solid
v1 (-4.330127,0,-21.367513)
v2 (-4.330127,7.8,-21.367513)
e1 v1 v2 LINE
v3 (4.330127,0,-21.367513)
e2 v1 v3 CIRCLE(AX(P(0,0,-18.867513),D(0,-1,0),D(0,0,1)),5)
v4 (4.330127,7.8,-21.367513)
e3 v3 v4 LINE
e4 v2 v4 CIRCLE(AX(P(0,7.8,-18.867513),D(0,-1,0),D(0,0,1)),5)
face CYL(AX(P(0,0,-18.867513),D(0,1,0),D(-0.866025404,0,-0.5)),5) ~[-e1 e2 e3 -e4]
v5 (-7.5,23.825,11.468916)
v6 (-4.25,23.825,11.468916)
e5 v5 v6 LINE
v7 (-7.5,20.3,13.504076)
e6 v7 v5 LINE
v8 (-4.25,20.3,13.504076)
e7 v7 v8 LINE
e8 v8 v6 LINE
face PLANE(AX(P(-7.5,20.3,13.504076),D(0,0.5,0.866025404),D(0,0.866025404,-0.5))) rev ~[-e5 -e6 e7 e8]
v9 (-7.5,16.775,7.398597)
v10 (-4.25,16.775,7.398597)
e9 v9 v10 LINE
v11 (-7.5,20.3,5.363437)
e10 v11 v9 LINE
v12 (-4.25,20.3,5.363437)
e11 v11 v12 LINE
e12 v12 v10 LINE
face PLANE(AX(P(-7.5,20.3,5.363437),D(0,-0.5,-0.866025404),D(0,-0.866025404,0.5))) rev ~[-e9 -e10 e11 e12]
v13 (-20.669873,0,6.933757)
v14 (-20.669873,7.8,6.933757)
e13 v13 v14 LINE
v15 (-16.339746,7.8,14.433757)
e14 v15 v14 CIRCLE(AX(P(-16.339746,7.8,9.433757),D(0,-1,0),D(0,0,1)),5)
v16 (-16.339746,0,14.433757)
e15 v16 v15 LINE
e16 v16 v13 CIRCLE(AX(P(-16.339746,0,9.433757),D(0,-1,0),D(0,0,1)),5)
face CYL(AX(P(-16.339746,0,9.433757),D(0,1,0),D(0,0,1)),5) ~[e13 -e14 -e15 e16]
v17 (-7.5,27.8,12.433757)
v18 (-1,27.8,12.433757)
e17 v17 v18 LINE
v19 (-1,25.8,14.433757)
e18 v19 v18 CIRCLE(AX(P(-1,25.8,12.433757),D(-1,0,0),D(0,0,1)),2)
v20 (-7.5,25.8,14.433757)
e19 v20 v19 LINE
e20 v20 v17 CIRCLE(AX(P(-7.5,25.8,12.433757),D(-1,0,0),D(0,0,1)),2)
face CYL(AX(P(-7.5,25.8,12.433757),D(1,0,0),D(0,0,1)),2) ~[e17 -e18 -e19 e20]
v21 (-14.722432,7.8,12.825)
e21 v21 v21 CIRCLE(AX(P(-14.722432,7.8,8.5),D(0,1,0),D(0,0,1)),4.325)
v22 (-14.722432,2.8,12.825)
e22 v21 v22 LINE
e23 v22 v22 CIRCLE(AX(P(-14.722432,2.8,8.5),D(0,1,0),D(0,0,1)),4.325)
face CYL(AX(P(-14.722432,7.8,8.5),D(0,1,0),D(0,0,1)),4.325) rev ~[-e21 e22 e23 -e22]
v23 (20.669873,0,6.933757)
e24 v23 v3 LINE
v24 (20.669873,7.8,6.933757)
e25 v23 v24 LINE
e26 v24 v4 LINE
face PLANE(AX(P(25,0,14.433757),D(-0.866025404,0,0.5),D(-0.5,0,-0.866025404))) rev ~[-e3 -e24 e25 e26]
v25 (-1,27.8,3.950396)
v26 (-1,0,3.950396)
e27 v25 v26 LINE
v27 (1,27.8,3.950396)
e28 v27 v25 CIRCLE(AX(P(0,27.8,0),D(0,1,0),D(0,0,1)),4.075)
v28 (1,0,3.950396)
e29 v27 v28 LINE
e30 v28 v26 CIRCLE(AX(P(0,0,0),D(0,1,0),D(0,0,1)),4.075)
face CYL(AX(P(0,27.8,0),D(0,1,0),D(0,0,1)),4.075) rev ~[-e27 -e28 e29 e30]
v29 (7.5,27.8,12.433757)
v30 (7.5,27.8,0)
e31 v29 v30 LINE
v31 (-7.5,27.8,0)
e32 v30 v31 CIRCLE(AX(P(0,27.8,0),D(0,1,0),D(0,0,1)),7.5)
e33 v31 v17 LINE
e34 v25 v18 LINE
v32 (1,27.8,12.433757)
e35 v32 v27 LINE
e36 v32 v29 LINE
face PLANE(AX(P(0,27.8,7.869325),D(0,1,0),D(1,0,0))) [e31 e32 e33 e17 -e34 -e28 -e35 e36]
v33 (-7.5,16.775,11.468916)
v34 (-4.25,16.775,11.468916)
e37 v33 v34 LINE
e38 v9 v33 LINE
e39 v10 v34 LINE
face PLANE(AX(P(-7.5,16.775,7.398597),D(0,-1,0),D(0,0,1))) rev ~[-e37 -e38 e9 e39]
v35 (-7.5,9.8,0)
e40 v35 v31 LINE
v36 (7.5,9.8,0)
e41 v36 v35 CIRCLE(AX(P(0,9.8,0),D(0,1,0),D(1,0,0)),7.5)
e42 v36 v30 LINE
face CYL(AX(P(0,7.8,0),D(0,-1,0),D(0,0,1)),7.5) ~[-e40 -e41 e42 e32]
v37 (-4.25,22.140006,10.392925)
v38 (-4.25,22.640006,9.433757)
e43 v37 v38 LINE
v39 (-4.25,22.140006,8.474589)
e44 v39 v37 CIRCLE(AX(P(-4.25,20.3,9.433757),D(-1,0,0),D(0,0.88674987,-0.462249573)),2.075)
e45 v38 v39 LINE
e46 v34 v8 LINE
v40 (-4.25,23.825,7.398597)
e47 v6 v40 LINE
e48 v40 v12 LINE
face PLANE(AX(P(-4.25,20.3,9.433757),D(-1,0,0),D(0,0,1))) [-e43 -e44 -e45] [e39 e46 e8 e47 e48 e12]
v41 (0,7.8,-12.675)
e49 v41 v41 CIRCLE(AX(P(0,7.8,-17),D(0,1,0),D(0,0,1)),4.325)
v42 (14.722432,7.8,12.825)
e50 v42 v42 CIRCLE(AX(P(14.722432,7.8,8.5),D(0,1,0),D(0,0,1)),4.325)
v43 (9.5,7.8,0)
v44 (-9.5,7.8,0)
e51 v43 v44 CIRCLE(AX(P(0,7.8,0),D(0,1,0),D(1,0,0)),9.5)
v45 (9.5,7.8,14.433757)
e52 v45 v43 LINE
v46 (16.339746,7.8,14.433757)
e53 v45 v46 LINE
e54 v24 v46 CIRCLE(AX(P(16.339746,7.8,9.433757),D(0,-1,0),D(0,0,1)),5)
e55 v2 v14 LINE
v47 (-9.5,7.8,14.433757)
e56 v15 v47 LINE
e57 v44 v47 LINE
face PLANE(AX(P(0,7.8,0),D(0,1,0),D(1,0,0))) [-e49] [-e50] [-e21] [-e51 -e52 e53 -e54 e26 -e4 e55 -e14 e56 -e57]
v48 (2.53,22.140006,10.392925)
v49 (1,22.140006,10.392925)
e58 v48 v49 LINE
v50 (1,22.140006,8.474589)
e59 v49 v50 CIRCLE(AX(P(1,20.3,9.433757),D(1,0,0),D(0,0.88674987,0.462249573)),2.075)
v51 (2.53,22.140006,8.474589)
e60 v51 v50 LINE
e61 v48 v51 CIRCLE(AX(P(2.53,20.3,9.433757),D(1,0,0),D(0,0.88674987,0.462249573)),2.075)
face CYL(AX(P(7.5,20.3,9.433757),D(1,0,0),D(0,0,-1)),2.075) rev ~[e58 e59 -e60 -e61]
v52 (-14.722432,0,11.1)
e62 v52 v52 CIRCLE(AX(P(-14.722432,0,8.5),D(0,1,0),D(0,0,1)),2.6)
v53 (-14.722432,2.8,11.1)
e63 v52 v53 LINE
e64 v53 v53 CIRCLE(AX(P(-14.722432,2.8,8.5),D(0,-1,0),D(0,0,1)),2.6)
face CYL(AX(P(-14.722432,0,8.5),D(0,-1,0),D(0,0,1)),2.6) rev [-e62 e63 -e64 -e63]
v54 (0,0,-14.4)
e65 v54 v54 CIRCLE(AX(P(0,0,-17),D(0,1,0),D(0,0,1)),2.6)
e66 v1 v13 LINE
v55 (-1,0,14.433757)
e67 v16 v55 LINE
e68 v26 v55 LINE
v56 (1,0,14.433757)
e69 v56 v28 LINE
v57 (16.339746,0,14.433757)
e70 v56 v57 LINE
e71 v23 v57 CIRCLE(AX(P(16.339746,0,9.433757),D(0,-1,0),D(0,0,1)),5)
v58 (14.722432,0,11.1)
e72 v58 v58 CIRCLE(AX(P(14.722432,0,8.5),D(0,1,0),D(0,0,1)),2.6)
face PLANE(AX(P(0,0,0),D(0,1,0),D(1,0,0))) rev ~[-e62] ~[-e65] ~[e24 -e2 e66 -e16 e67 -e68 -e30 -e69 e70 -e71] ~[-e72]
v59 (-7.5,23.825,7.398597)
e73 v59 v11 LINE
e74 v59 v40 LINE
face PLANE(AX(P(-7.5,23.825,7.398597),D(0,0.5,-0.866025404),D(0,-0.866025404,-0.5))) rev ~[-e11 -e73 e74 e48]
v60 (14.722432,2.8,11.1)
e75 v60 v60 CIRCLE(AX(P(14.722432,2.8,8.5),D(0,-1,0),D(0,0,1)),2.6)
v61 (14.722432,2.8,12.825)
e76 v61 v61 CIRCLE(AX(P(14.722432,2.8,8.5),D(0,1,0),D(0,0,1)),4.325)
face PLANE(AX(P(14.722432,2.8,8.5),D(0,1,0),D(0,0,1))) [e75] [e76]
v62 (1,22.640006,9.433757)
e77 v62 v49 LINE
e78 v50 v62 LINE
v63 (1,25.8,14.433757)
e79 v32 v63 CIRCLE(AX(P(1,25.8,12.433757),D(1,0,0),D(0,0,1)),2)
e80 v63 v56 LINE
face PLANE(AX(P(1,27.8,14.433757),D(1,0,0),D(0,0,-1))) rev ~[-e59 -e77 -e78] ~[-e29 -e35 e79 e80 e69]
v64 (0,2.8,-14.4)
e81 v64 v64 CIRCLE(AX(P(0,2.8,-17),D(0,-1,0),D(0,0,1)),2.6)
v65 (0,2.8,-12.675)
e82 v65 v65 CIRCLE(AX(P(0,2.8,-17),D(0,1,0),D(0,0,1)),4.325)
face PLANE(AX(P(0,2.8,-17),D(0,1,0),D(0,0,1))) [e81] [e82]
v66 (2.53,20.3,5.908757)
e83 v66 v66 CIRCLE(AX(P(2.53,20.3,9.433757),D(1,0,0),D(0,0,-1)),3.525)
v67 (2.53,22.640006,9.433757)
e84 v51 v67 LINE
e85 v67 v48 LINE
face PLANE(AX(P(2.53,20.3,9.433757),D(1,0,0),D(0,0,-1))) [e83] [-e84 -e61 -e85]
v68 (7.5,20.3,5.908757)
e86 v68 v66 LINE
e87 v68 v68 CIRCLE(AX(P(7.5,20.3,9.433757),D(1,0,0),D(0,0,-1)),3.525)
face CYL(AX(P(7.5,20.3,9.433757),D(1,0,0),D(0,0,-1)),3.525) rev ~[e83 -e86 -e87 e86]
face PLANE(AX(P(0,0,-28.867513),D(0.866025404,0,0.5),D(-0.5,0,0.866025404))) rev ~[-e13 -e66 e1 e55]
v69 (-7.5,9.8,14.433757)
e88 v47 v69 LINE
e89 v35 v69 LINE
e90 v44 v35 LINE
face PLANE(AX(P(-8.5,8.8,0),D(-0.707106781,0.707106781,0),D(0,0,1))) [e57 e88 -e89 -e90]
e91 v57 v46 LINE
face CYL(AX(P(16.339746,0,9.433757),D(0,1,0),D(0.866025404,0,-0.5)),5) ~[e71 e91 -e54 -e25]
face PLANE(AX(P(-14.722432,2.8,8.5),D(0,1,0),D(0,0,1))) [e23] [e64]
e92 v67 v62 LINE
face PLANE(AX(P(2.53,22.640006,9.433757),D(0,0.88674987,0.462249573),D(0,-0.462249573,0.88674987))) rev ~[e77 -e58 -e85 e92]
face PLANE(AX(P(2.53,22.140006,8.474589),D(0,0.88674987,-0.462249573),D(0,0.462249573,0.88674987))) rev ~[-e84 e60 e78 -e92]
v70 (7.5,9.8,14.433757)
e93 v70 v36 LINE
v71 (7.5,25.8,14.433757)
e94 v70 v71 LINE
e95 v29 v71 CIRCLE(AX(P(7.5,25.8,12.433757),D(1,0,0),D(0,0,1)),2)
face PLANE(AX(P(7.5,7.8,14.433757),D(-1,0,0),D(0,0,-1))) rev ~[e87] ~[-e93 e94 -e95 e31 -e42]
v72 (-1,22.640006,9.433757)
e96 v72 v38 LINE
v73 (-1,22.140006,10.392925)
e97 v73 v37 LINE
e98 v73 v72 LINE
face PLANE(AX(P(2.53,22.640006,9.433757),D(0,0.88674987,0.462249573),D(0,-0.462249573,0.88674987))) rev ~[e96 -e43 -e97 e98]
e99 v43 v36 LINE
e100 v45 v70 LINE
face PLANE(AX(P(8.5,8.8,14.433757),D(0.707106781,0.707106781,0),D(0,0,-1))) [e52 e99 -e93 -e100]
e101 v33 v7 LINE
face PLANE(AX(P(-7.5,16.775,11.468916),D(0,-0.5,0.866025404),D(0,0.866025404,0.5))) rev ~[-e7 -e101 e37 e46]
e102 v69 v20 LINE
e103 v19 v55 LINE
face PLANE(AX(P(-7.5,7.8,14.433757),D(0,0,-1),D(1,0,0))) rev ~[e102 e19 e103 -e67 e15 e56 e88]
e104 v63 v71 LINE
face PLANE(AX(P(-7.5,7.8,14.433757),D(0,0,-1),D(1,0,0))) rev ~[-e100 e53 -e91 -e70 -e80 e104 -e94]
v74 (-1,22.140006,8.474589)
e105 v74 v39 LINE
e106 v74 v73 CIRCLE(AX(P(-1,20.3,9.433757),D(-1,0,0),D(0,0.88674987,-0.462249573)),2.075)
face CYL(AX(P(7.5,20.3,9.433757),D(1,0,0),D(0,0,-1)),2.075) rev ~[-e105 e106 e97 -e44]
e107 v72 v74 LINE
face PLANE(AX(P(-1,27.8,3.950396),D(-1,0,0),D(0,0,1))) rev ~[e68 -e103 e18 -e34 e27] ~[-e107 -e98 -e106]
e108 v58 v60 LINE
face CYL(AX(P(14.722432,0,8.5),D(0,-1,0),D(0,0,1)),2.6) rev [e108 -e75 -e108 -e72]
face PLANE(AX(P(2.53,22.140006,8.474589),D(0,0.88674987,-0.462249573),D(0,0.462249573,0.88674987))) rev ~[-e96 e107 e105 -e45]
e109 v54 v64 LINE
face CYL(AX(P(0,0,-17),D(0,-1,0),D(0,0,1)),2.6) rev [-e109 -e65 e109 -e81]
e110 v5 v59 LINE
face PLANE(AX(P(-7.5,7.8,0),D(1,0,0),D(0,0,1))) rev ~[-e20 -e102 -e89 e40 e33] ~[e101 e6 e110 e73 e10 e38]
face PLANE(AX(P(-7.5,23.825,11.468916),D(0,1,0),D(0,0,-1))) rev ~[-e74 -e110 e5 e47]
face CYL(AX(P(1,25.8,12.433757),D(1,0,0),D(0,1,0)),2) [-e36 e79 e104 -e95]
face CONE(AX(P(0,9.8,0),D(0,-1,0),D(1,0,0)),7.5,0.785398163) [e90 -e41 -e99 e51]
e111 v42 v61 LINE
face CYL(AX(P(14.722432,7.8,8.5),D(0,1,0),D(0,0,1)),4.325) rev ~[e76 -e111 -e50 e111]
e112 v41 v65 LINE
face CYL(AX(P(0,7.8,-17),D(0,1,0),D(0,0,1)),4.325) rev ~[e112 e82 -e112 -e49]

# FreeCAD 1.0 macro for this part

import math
import FreeCAD as App
import Part
import Sketcher
from FreeCAD import Vector
Q = App.Units.Quantity


def edges_at(feature, points):
    """Names of the edges that pass closest to the given points."""
    edges = feature.Shape.Edges
    near = lambda p: min(range(len(edges)), key=lambda i: edges[i].distToShape(Part.Vertex(*p))[0])
    return sorted({f"Edge{near(p) + 1}" for p in points})

doc = App.newDocument("Part")
body = doc.addObject("PartDesign::Body", "Body")

sketch1 = body.newObject("Sketcher::SketchObject", "Sketch")
sketch1.AttachmentSupport = (doc.getObject("XZ_Plane"), [""])
sketch1.MapMode = "FlatFace"
sketch1.addGeometry([
    Part.LineSegment(Vector(-25, 14.433757, 0), Vector(25, 14.433757, 0)),
    Part.LineSegment(Vector(25, 14.433757, 0), Vector(0, -28.867513, 0)),
    Part.LineSegment(Vector(0, -28.867513, 0), Vector(-25, 14.433757, 0)),
    Part.Circle(Vector(-14.722432, 8.5, 0), Vector(0, 0, 1), 2.6),
    Part.Circle(Vector(14.722432, 8.5, 0), Vector(0, 0, 1), 2.6),
    Part.Circle(Vector(0, -17, 0), Vector(0, 0, 1), 2.6),
], False)
sketch1.addConstraint([
    Sketcher.Constraint("Coincident", 0, 2, 1, 1),
    Sketcher.Constraint("Coincident", 1, 2, 2, 1),
    Sketcher.Constraint("Coincident", 2, 2, 0, 1),
    Sketcher.Constraint("Horizontal", 0),
    Sketcher.Constraint("Equal", 3, 4),
    Sketcher.Constraint("Equal", 4, 5),
    Sketcher.Constraint("Symmetric", 3, 3, 4, 3, -2),
    Sketcher.Constraint("PointOnObject", 5, 3, -2),
    Sketcher.Constraint("PointOnObject", 1, 2, -2),
    Sketcher.Constraint("Equal", 1, 2),
    Sketcher.Constraint("Diameter", 3, 5.2),
    Sketcher.Constraint("DistanceX", 0, 1, 0, 2, 50.0),
    Sketcher.Constraint("Angle", 1, Q("-120 deg")),
    Sketcher.Constraint("DistanceY", 5, 3, -1, 1, 17.0),
    Sketcher.Constraint("DistanceY", -1, 1, 3, 3, 8.5),
    Sketcher.Constraint("DistanceX", 3, 3, -1, 1, 14.722432),
    Sketcher.Constraint("DistanceY", -1, 1, 0, 2, 14.433757),
])
pad1 = body.newObject("PartDesign::Pad", "Pad")
pad1.Profile = sketch1
pad1.Length = 7.8
pad1.Reversed = True

sketch2 = body.newObject("Sketcher::SketchObject", "Sketch001")
sketch2.AttachmentSupport = (doc.getObject("XZ_Plane"), [""])
sketch2.MapMode = "FlatFace"
sketch2.AttachmentOffset = App.Placement(Vector(0, 0, -7.8), App.Rotation())
sketch2.addGeometry(Part.Circle(Vector(0, 0, 0), Vector(0, 0, 1), 7.5), False)
sketch2.addConstraint([
    Sketcher.Constraint("Coincident", 0, 3, -1, 1),
    Sketcher.Constraint("Diameter", 0, 15.0),
])
pad2 = body.newObject("PartDesign::Pad", "Pad001")
pad2.Profile = sketch2
pad2.Length = 20
pad2.Reversed = True

sketch3 = body.newObject("Sketcher::SketchObject", "Sketch002")
sketch3.AttachmentSupport = (doc.getObject("XZ_Plane"), [""])
sketch3.MapMode = "FlatFace"
sketch3.AttachmentOffset = App.Placement(Vector(0, 0, -7.8), App.Rotation())
sketch3.addGeometry([
    Part.LineSegment(Vector(-7.5, 0, 0), Vector(-7.5, 14.433757, 0)),
    Part.LineSegment(Vector(-7.5, 14.433757, 0), Vector(7.5, 14.433757, 0)),
    Part.LineSegment(Vector(7.5, 14.433757, 0), Vector(7.5, 0, 0)),
    Part.ArcOfCircle(Part.Circle(Vector(0, 0, 0), Vector(0, 0, 1), 7.5), math.radians(0), math.radians(180)),
], False)
sketch3.addConstraint([
    Sketcher.Constraint("Coincident", 0, 2, 1, 1),
    Sketcher.Constraint("Coincident", 1, 2, 2, 1),
    Sketcher.Constraint("Tangent", 2, 2, 3, 1),
    Sketcher.Constraint("Tangent", 3, 2, 0, 1),
    Sketcher.Constraint("Vertical", 0),
    Sketcher.Constraint("Horizontal", 1),
    Sketcher.Constraint("Vertical", 2),
    Sketcher.Constraint("Coincident", 3, 3, -1, 1),
    Sketcher.Constraint("Radius", 3, 7.5),
    Sketcher.Constraint("DistanceY", 0, 1, 0, 2, 14.433757),
])
pad3 = body.newObject("PartDesign::Pad", "Pad002")
pad3.Profile = sketch3
pad3.Length = 20
pad3.Reversed = True

sketch4 = body.newObject("Sketcher::SketchObject", "Sketch003")
sketch4.AttachmentSupport = (doc.getObject("XZ_Plane"), [""])
sketch4.MapMode = "FlatFace"
sketch4.AttachmentOffset = App.Placement(Vector(0, 0, -27.8), App.Rotation())
sketch4.addGeometry(Part.Circle(Vector(0, 0, 0), Vector(0, 0, 1), 4.075), False)
sketch4.addConstraint([
    Sketcher.Constraint("Coincident", 0, 3, -1, 1),
    Sketcher.Constraint("Diameter", 0, 8.15),
])
pocket1 = body.newObject("PartDesign::Pocket", "Pocket")
pocket1.Profile = sketch4
pocket1.Type = "ThroughAll"
pocket1.Reversed = True

sketch5 = body.newObject("Sketcher::SketchObject", "Sketch004")
sketch5.AttachmentSupport = (doc.getObject("XZ_Plane"), [""])
sketch5.MapMode = "FlatFace"
sketch5.AttachmentOffset = App.Placement(Vector(0, 0, -27.8), App.Rotation())
sketch5.addGeometry([
    Part.LineSegment(Vector(-1, 3.950396, 0), Vector(-1, 14.433757, 0)),
    Part.LineSegment(Vector(-1, 14.433757, 0), Vector(1, 14.433757, 0)),
    Part.LineSegment(Vector(1, 14.433757, 0), Vector(1, 3.950396, 0)),
    Part.ArcOfCircle(Part.Circle(Vector(0, 0, 0), Vector(0, 0, 1), 4.075), math.radians(75.794599), math.radians(104.205401)),
], False)
sketch5.addConstraint([
    Sketcher.Constraint("Coincident", 0, 2, 1, 1),
    Sketcher.Constraint("Coincident", 1, 2, 2, 1),
    Sketcher.Constraint("Coincident", 2, 2, 3, 1),
    Sketcher.Constraint("Coincident", 3, 2, 0, 1),
    Sketcher.Constraint("Vertical", 0),
    Sketcher.Constraint("Horizontal", 1),
    Sketcher.Constraint("Vertical", 2),
    Sketcher.Constraint("Coincident", 3, 3, -1, 1),
    Sketcher.Constraint("Horizontal", 2, 2, 3, 2),
    Sketcher.Constraint("DistanceX", 1, 1, 1, 2, 2.0),
    Sketcher.Constraint("Radius", 3, 4.075),
    Sketcher.Constraint("DistanceY", 0, 1, 0, 2, 10.483361),
])
pocket2 = body.newObject("PartDesign::Pocket", "Pocket001")
pocket2.Profile = sketch5
pocket2.Type = "ThroughAll"
pocket2.Reversed = True
doc.recompute()

fillet = body.newObject("PartDesign::Fillet", "Fillet")
fillet.Base = (pocket2, edges_at(pocket2, [(0, 3.9, -28.868), (25, 3.9, 14.434), (-25, 3.9, 14.434)]))
fillet.Radius = 5

sketch6 = body.newObject("Sketcher::SketchObject", "Sketch005")
sketch6.AttachmentSupport = (doc.getObject("YZ_Plane"), [""])
sketch6.MapMode = "FlatFace"
sketch6.AttachmentOffset = App.Placement(Vector(0, 0, 7.5), App.Rotation())
sketch6.addGeometry(Part.Circle(Vector(20.3, 9.433757, 0), Vector(0, 0, 1), 2.075), False)
sketch6.addConstraint([
    Sketcher.Constraint("Diameter", 0, 4.15),
    Sketcher.Constraint("DistanceX", -1, 1, 0, 3, 20.3),
    Sketcher.Constraint("DistanceY", -1, 1, 0, 3, 9.433757),
])
pocket3 = body.newObject("PartDesign::Pocket", "Pocket002")
pocket3.Profile = sketch6
pocket3.Type = "ThroughAll"

sketch7 = body.newObject("Sketcher::SketchObject", "Sketch006")
sketch7.AttachmentSupport = (doc.getObject("YZ_Plane"), [""])
sketch7.MapMode = "FlatFace"
sketch7.AttachmentOffset = App.Placement(Vector(0, 0, -7.5), App.Rotation())
sketch7.addGeometry([
    Part.LineSegment(Vector(23.825, 11.468916, 0), Vector(23.825, 7.398597, 0)),
    Part.LineSegment(Vector(23.825, 7.398597, 0), Vector(20.3, 5.363437, 0)),
    Part.LineSegment(Vector(20.3, 5.363437, 0), Vector(16.775, 7.398597, 0)),
    Part.LineSegment(Vector(16.775, 7.398597, 0), Vector(16.775, 11.468916, 0)),
    Part.LineSegment(Vector(16.775, 11.468916, 0), Vector(20.3, 13.504076, 0)),
    Part.LineSegment(Vector(20.3, 13.504076, 0), Vector(23.825, 11.468916, 0)),
], False)
sketch7.addConstraint([
    Sketcher.Constraint("Coincident", 0, 2, 1, 1),
    Sketcher.Constraint("Coincident", 1, 2, 2, 1),
    Sketcher.Constraint("Coincident", 2, 2, 3, 1),
    Sketcher.Constraint("Coincident", 3, 2, 4, 1),
    Sketcher.Constraint("Coincident", 4, 2, 5, 1),
    Sketcher.Constraint("Coincident", 5, 2, 0, 1),
    Sketcher.Constraint("Vertical", 0),
    Sketcher.Constraint("Vertical", 3),
    Sketcher.Constraint("Parallel", 1, 4),
    Sketcher.Constraint("Parallel", 2, 5),
    Sketcher.Constraint("Horizontal", 0, 2, 2, 2),
    Sketcher.Constraint("Horizontal", 3, 2, 5, 2),
    Sketcher.Constraint("Vertical", 1, 2, 4, 2),
    Sketcher.Constraint("Angle", 1, Q("-150 deg")),
    Sketcher.Constraint("DistanceX", -1, 1, 1, 2, 20.3),
    Sketcher.Constraint("DistanceX", 2, 2, 0, 2, 7.05),
    Sketcher.Constraint("DistanceY", 0, 2, 0, 1, 4.070319),
    Sketcher.Constraint("DistanceY", -1, 1, 0, 2, 7.398597),
])
pocket4 = body.newObject("PartDesign::Pocket", "Pocket003")
pocket4.Profile = sketch7
pocket4.Length = 3.25
pocket4.Reversed = True

sketch8 = body.newObject("Sketcher::SketchObject", "Sketch007")
sketch8.AttachmentSupport = (doc.getObject("XZ_Plane"), [""])
sketch8.MapMode = "FlatFace"
sketch8.AttachmentOffset = App.Placement(Vector(0, 0, -7.8), App.Rotation())
sketch8.addGeometry([
    Part.Circle(Vector(0, -17, 0), Vector(0, 0, 1), 4.325),
    Part.Circle(Vector(14.722432, 8.5, 0), Vector(0, 0, 1), 4.325),
    Part.Circle(Vector(-14.722432, 8.5, 0), Vector(0, 0, 1), 4.325),
], False)
sketch8.addConstraint([
    Sketcher.Constraint("Equal", 0, 1),
    Sketcher.Constraint("Equal", 1, 2),
    Sketcher.Constraint("Symmetric", 1, 3, 2, 3, -2),
    Sketcher.Constraint("PointOnObject", 0, 3, -2),
    Sketcher.Constraint("Diameter", 0, 8.65),
    Sketcher.Constraint("DistanceY", 0, 3, -1, 1, 17.0),
    Sketcher.Constraint("DistanceY", -1, 1, 1, 3, 8.5),
    Sketcher.Constraint("DistanceX", -1, 1, 1, 3, 14.722432),
])
pocket5 = body.newObject("PartDesign::Pocket", "Pocket004")
pocket5.Profile = sketch8
pocket5.Length = 5
pocket5.Reversed = True

sketch9 = body.newObject("Sketcher::SketchObject", "Sketch008")
sketch9.AttachmentSupport = (doc.getObject("YZ_Plane"), [""])
sketch9.MapMode = "FlatFace"
sketch9.AttachmentOffset = App.Placement(Vector(0, 0, 7.5), App.Rotation())
sketch9.addGeometry(Part.Circle(Vector(20.3, 9.433757, 0), Vector(0, 0, 1), 3.525), False)
sketch9.addConstraint([
    Sketcher.Constraint("Diameter", 0, 7.05),
    Sketcher.Constraint("DistanceX", -1, 1, 0, 3, 20.3),
    Sketcher.Constraint("DistanceY", -1, 1, 0, 3, 9.433757),
])
pocket6 = body.newObject("PartDesign::Pocket", "Pocket005")
pocket6.Profile = sketch9
pocket6.Length = 4.97
doc.recompute()

fillet2 = body.newObject("PartDesign::Fillet", "Fillet001")
fillet2.Base = (pocket6, edges_at(pocket6, [(-4.25, 27.8, 14.434), (4.25, 27.8, 14.434)]))
fillet2.Radius = 2
doc.recompute()

chamfer = body.newObject("PartDesign::Chamfer", "Chamfer")
chamfer.Base = (fillet2, edges_at(fillet2, [(0, 7.8, -7.5), (7.5, 7.8, 7.217), (-7.5, 7.8, 7.217)]))
chamfer.Size = 2

sketch10 = body.newObject("Sketcher::SketchObject", "Sketch009")
sketch10.AttachmentSupport = (doc.getObject("YZ_Plane"), [""])
sketch10.MapMode = "FlatFace"
sketch10.AttachmentOffset = App.Placement(Vector(0, 0, 2.53), App.Rotation())
sketch10.addGeometry([
    Part.LineSegment(Vector(22.140006, 10.392925, 0), Vector(22.140006, 8.474589, 0)),
    Part.LineSegment(Vector(22.140006, 8.474589, 0), Vector(22.640006, 9.433757, 0)),
    Part.LineSegment(Vector(22.640006, 9.433757, 0), Vector(22.140006, 10.392925, 0)),
], False)
sketch10.addConstraint([
    Sketcher.Constraint("Coincident", 0, 2, 1, 1),
    Sketcher.Constraint("Coincident", 1, 2, 2, 1),
    Sketcher.Constraint("Coincident", 2, 2, 0, 1),
    Sketcher.Constraint("Vertical", 0),
    Sketcher.Constraint("Equal", 1, 2),
    Sketcher.Constraint("DistanceX", 0, 2, 1, 2, 0.5),
    Sketcher.Constraint("DistanceY", 0, 2, 0, 1, 1.918336),
    Sketcher.Constraint("DistanceY", -1, 1, 0, 2, 8.474589),
    Sketcher.Constraint("DistanceX", -1, 1, 0, 2, 22.140006),
])
pocket7 = body.newObject("PartDesign::Pocket", "Pocket006")
pocket7.Profile = sketch10
pocket7.Type = "ThroughAll"

doc.recompute()
